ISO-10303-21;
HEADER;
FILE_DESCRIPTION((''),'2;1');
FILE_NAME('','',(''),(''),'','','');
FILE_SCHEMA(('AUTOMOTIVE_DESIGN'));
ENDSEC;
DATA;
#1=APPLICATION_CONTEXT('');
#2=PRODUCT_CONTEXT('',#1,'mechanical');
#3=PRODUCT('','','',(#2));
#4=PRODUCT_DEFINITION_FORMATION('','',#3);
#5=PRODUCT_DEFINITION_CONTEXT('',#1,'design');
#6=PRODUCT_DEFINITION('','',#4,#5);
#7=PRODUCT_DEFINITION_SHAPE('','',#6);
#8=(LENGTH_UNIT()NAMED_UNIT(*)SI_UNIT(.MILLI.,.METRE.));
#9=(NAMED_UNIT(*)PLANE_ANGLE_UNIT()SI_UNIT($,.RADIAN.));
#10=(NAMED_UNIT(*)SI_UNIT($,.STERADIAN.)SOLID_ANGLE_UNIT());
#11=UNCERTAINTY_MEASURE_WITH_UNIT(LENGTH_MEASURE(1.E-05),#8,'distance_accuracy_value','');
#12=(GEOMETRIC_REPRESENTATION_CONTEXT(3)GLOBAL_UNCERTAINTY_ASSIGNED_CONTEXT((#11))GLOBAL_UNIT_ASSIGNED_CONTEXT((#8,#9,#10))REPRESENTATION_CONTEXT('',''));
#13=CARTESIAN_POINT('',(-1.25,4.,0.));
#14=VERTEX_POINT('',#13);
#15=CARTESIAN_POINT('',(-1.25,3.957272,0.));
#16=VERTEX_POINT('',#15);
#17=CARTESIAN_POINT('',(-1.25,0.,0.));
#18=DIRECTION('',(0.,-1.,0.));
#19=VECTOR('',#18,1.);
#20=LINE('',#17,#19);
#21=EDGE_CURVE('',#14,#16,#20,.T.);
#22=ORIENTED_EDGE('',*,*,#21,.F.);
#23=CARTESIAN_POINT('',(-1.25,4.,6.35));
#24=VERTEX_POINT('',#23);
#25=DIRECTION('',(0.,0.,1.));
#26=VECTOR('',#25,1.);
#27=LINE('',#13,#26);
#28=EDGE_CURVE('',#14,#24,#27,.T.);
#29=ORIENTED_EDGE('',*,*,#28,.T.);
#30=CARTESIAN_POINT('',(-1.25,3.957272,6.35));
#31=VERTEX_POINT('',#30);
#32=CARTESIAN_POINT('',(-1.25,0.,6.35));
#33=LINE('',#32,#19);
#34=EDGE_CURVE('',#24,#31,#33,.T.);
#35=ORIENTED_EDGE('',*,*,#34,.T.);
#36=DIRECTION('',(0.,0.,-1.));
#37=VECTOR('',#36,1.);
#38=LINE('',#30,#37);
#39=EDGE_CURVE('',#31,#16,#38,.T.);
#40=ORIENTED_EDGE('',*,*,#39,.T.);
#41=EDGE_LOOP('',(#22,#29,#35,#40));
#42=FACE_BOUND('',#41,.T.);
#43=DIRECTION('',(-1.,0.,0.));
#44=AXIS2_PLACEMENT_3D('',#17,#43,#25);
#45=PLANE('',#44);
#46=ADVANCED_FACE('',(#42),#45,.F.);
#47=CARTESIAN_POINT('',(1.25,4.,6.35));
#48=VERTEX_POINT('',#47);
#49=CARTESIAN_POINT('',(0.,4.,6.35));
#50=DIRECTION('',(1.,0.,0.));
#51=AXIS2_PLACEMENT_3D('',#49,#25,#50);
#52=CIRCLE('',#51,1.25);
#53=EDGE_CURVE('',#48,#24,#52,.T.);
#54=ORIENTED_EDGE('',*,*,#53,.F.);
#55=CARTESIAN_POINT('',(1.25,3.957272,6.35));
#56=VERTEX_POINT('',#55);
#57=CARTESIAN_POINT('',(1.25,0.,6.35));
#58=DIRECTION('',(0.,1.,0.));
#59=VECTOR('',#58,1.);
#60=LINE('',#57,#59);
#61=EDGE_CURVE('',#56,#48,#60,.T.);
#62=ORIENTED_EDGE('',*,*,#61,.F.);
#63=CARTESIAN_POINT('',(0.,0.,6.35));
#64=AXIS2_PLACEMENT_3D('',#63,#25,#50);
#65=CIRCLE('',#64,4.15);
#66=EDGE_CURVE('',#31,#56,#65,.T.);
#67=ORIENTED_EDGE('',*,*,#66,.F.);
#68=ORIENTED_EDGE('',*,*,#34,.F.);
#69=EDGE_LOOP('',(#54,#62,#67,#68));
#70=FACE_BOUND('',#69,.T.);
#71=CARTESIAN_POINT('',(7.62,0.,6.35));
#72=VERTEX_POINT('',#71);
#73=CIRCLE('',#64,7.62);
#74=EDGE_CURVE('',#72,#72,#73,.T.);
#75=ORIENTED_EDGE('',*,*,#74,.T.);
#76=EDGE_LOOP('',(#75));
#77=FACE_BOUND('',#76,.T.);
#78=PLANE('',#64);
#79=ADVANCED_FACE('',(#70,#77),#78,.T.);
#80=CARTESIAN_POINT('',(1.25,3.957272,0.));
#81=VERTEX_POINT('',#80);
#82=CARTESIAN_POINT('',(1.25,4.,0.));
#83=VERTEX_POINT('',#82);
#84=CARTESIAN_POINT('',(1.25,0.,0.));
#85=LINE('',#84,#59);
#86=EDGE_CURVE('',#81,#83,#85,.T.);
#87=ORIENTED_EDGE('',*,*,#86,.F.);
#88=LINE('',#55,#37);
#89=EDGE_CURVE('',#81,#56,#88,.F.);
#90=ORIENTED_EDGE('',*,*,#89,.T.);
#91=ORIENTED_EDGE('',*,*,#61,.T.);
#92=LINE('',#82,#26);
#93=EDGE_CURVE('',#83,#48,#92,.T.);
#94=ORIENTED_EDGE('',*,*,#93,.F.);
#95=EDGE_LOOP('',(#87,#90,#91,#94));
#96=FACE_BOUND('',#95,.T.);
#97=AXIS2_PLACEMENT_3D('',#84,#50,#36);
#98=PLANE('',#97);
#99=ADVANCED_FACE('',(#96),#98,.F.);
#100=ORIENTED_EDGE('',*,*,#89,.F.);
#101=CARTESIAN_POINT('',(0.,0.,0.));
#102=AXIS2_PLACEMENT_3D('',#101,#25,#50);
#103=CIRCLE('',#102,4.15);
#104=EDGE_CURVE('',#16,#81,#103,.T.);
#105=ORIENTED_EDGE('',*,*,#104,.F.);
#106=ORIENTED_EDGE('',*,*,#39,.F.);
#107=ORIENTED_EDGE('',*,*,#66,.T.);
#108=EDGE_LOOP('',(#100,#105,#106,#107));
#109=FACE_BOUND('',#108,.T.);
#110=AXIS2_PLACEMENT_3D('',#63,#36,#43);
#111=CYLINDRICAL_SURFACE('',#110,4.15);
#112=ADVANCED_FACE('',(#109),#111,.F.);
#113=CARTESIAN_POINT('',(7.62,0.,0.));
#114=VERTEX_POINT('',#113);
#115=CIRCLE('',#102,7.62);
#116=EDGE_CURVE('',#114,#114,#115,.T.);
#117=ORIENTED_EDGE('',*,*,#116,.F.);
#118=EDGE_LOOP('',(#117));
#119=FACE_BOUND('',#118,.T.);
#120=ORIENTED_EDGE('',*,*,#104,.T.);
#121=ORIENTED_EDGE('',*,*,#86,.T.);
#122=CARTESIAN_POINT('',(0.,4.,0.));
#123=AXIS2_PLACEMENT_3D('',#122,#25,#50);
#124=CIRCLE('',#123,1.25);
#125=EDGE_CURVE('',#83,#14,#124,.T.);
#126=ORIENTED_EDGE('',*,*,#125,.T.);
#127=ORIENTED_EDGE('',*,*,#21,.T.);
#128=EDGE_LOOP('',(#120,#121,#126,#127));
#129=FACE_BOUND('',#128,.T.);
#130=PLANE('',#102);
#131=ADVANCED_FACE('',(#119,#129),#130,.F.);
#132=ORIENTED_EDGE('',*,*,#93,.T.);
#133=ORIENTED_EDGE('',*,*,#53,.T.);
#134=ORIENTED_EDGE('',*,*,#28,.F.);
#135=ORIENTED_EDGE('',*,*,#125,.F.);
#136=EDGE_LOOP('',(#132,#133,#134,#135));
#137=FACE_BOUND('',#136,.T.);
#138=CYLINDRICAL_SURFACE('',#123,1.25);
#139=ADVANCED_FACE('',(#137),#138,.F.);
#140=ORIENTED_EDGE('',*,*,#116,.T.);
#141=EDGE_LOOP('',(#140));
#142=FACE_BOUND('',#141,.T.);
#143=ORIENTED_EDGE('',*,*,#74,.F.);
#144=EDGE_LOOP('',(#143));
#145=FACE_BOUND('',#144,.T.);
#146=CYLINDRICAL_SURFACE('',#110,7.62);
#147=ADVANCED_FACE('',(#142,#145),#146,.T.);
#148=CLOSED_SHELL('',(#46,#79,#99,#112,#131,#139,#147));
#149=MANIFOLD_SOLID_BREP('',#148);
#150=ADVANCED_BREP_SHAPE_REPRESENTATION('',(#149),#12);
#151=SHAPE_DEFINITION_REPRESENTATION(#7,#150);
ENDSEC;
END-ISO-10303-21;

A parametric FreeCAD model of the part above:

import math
import FreeCAD as App
import Part
import Sketcher
from FreeCAD import Vector
Q = App.Units.Quantity

doc = App.newDocument("Part")
params = doc.addObject("Spreadsheet::Sheet", "Params")
for row, (alias, value) in enumerate([
    ("sketch1_diameter", "8.3 mm"),
    ("sketch1_diameter2", "15.24 mm"),
    ("pad1_length", "6.35 mm"),
    ("sketch2_height", "4 mm"),
    ("sketch2_radius", "1.25 mm"),
], start=1):
    params.set(f"A{row}", alias)
    params.set(f"B{row}", "=" + value)
    params.setAlias(f"B{row}", alias)

body = doc.addObject("PartDesign::Body", "Body")

# Sketch on XY plane
sketch1 = body.newObject("Sketcher::SketchObject", "Sketch")
sketch1.AttachmentSupport = (doc.getObject("XY_Plane"), [""])
sketch1.MapMode = "FlatFace"
sketch1.addGeometry([
    Part.Circle(Vector(0, 0, 0), Vector(0, 0, 1), 7.6),
    Part.Circle(Vector(0, 0, 0), Vector(0, 0, 1), 4.2),
], False)
sketch1.addConstraint([
    Sketcher.Constraint("Coincident", 0, 3, -1, 1),
    Sketcher.Constraint("Coincident", 1, 3, -1, 1),
    Sketcher.Constraint("Diameter", 1, Q("8.3 mm")),
    Sketcher.Constraint("Diameter", 0, Q("15.24 mm")),
])
sketch1.setExpression("Constraints[2]", "Params.sketch1_diameter")
sketch1.setExpression("Constraints[3]", "Params.sketch1_diameter2")
pad1 = body.newObject("PartDesign::Pad", "Pad")
pad1.Profile = sketch1
pad1.setExpression("Length", "Params.pad1_length")

# Sketch on XY plane
sketch2 = body.newObject("Sketcher::SketchObject", "Sketch001")
sketch2.AttachmentSupport = (doc.getObject("XY_Plane"), [""])
sketch2.MapMode = "FlatFace"
sketch2.AttachmentOffset = App.Placement(Vector(0, 0, 6.35), App.Rotation())
sketch2.addGeometry([
    Part.LineSegment(Vector(-1.2, 4, 0), Vector(-1.2, 0, 0)),
    Part.ArcOfCircle(Part.Circle(Vector(0, 0, 0), Vector(0, 0, 1), 1.2), math.radians(180), math.radians(360)),
    Part.LineSegment(Vector(1.2, 0, 0), Vector(1.2, 4, 0)),
    Part.ArcOfCircle(Part.Circle(Vector(0, 4, 0), Vector(0, 0, 1), 1.2), math.radians(0), math.radians(180)),
], False)
sketch2.addConstraint([
    Sketcher.Constraint("Tangent", 0, 2, 1, 1),
    Sketcher.Constraint("Tangent", 1, 2, 2, 1),
    Sketcher.Constraint("Tangent", 2, 2, 3, 1),
    Sketcher.Constraint("Tangent", 3, 2, 0, 1),
    Sketcher.Constraint("Vertical", 0),
    Sketcher.Constraint("Vertical", 2),
    Sketcher.Constraint("Coincident", 1, 3, -1, 1),
    Sketcher.Constraint("DistanceY", 0, 2, 0, 1, Q("4 mm")),
    Sketcher.Constraint("Radius", 1, Q("1.25 mm")),
])
sketch2.setExpression("Constraints[7]", "Params.sketch2_height")
sketch2.setExpression("Constraints[8]", "Params.sketch2_radius")
pocket1 = body.newObject("PartDesign::Pocket", "Pocket")
pocket1.Profile = sketch2
pocket1.Type = "ThroughAll"

doc.recompute()
